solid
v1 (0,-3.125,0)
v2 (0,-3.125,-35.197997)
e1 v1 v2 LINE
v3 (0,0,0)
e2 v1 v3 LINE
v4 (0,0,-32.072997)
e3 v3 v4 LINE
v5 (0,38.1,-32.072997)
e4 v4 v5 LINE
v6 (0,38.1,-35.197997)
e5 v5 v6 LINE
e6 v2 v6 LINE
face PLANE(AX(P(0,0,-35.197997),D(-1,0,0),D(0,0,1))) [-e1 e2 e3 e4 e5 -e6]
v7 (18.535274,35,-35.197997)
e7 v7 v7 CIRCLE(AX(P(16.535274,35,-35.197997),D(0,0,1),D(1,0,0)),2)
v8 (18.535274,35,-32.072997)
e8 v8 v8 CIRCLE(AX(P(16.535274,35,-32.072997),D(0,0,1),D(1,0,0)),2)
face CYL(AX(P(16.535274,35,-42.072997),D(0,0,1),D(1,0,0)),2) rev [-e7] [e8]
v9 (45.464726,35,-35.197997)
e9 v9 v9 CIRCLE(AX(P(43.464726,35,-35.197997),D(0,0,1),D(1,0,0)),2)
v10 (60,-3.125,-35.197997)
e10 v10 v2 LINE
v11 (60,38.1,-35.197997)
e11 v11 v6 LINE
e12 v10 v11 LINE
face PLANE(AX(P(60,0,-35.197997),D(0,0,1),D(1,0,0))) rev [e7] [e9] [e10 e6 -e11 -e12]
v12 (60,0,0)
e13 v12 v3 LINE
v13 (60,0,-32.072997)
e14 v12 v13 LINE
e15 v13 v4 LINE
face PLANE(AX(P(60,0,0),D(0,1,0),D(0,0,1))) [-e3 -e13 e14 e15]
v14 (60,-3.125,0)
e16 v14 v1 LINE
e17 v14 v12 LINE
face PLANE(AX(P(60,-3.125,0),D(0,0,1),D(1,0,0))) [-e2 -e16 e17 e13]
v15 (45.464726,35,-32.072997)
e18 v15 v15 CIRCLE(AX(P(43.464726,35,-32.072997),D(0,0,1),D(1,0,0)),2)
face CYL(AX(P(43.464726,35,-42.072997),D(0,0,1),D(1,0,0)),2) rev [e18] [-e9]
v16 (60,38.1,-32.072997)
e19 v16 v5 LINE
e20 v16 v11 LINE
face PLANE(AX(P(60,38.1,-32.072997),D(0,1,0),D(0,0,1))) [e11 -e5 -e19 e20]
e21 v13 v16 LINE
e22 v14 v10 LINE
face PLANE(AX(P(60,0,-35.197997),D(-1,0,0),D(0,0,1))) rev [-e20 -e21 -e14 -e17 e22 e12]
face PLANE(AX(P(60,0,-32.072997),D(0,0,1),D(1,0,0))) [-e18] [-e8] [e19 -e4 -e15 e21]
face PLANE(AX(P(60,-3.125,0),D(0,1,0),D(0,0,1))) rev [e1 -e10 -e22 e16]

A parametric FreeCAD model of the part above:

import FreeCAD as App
import Part
import Sketcher

V = App.Vector
Q = App.Units.Quantity


def add_polygon(sketch, points):
    """Adds a closed chain of lines whose ends are joined by coincident constraints."""
    first, n = sketch.GeometryCount, len(points)
    for a, b in zip(points, points[1:] + points[:1]):
        sketch.addGeometry(Part.LineSegment(App.Vector(*a, 0), App.Vector(*b, 0)), False)
    for i in range(n):
        sketch.addConstraint(Sketcher.Constraint("Coincident", first + i, 2, first + (i + 1) % n, 1))

doc = App.newDocument("Part")
body = doc.addObject("PartDesign::Body", "Body")

sketch1 = doc.addObject("Sketcher::SketchObject", "Sketch")
body.addObject(sketch1)
sketch1.AttachmentSupport = (doc.YZ_Plane, [""])
sketch1.MapMode = "FlatFace"
add_polygon(sketch1, [(0, -32.072997), (0, 0), (-3.125, 0), (-3.125, -35.197997), (38.1, -35.197997), (38.1, -32.072997)])
sketch1.addConstraint([
    Sketcher.Constraint("Vertical", 0),
    Sketcher.Constraint("Horizontal", 1),
    Sketcher.Constraint("Vertical", 2),
    Sketcher.Constraint("Horizontal", 3),
    Sketcher.Constraint("Vertical", 4),
    Sketcher.Constraint("Horizontal", 5),
    Sketcher.Constraint("Coincident", 0, 2, -1, 1),
    Sketcher.Constraint("Equal", 1, 4),
    Sketcher.Constraint("DistanceX", 5, 2, 5, 1, Q("38.1 mm")),
    Sketcher.Constraint("DistanceX", 1, 2, 1, 1, Q("3.125 mm")),
    Sketcher.Constraint("DistanceY", 0, 1, 0, 2, Q("32.072997 mm")),
])
pad1 = doc.addObject("PartDesign::Pad", "Pad")
body.addObject(pad1)
pad1.Profile = sketch1
pad1.Length = 60

sketch2 = doc.addObject("Sketcher::SketchObject", "Sketch001")
body.addObject(sketch2)
sketch2.AttachmentSupport = (doc.XY_Plane, [""])
sketch2.MapMode = "FlatFace"
sketch2.AttachmentOffset = App.Placement(V(0, 0, -32.072997), App.Rotation())
sketch2.addGeometry([
    Part.Circle(V(16.535274, 35, 0), V(0, 0, 1), 2),
    Part.Circle(V(43.464726, 35, 0), V(0, 0, 1), 2),
], False)
sketch2.addConstraint([
    Sketcher.Constraint("Equal", 0, 1),
    Sketcher.Constraint("Horizontal", 0, 3, 1, 3),
    Sketcher.Constraint("Diameter", 0, Q("4 mm")),
    Sketcher.Constraint("DistanceY", -1, 1, 0, 3, Q("35 mm")),
    Sketcher.Constraint("DistanceX", -1, 1, 0, 3, Q("16.535274 mm")),
    Sketcher.Constraint("DistanceX", -1, 1, 1, 3, Q("43.464726 mm")),
])
pocket1 = doc.addObject("PartDesign::Pocket", "Pocket")
body.addObject(pocket1)
pocket1.Profile = sketch2
pocket1.Length = 10

doc.recompute()
